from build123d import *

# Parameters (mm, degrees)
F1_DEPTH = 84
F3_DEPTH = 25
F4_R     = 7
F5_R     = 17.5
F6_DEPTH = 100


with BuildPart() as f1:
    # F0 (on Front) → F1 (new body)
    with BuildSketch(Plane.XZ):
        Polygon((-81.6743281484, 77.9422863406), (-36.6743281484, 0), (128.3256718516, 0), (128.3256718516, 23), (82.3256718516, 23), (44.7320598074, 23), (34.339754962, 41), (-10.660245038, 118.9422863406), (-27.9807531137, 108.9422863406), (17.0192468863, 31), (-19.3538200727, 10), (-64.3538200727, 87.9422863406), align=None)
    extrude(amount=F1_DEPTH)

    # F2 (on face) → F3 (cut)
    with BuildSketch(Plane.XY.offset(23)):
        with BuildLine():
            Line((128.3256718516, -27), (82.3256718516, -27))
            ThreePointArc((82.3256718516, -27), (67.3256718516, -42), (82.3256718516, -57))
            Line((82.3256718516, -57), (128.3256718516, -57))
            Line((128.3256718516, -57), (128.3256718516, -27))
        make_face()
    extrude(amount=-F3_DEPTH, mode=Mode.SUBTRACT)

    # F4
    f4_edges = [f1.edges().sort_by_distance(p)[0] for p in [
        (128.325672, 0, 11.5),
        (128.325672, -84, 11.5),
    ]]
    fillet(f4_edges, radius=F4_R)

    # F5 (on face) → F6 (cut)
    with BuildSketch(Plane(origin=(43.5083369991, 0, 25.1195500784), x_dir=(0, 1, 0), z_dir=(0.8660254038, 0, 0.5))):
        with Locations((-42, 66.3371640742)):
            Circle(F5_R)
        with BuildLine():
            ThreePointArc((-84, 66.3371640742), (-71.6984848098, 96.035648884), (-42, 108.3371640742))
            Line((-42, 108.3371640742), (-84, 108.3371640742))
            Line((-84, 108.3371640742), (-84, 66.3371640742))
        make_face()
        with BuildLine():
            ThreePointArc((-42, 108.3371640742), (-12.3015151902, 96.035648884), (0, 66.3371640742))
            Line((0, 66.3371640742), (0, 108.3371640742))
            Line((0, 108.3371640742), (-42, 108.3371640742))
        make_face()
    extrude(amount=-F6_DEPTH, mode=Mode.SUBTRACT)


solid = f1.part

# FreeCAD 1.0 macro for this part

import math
import FreeCAD as App
import Part
import Sketcher
from FreeCAD import Vector
Q = App.Units.Quantity


def edges_at(feature, points):
    """Names of the edges that pass closest to the given points."""
    edges = feature.Shape.Edges
    near = lambda p: min(range(len(edges)), key=lambda i: edges[i].distToShape(Part.Vertex(*p))[0])
    return sorted({f"Edge{near(p) + 1}" for p in points})

doc = App.newDocument("Part")
body = doc.addObject("PartDesign::Body", "Body")

sketch1 = body.newObject("Sketcher::SketchObject", "Sketch")
sketch1.AttachmentSupport = (doc.getObject("XZ_Plane"), [""])
sketch1.MapMode = "FlatFace"
sketch1.addGeometry([
    Part.LineSegment(Vector(-82, 78, 0), Vector(-37, 0, 0)),
    Part.LineSegment(Vector(-37, 0, 0), Vector(128, 0, 0)),
    Part.LineSegment(Vector(128, 0, 0), Vector(128, 23, 0)),
    Part.LineSegment(Vector(128, 23, 0), Vector(45, 23, 0)),
    Part.LineSegment(Vector(45, 23, 0), Vector(-11, 119, 0)),
    Part.LineSegment(Vector(-11, 119, 0), Vector(-28, 109, 0)),
    Part.LineSegment(Vector(-28, 109, 0), Vector(17, 31, 0)),
    Part.LineSegment(Vector(17, 31, 0), Vector(-19, 10, 0)),
    Part.LineSegment(Vector(-19, 10, 0), Vector(-64, 88, 0)),
    Part.LineSegment(Vector(-64, 88, 0), Vector(-82, 78, 0)),
], False)
sketch1.addConstraint([
    Sketcher.Constraint("Coincident", 0, 2, 1, 1),
    Sketcher.Constraint("Coincident", 1, 2, 2, 1),
    Sketcher.Constraint("Coincident", 2, 2, 3, 1),
    Sketcher.Constraint("Coincident", 3, 2, 4, 1),
    Sketcher.Constraint("Coincident", 4, 2, 5, 1),
    Sketcher.Constraint("Coincident", 5, 2, 6, 1),
    Sketcher.Constraint("Coincident", 6, 2, 7, 1),
    Sketcher.Constraint("Coincident", 7, 2, 8, 1),
    Sketcher.Constraint("Coincident", 8, 2, 9, 1),
    Sketcher.Constraint("Coincident", 9, 2, 0, 1),
    Sketcher.Constraint("Horizontal", 1),
    Sketcher.Constraint("Vertical", 2),
    Sketcher.Constraint("Horizontal", 3),
    Sketcher.Constraint("PointOnObject", 0, 2, -1),
    Sketcher.Constraint("Parallel", 0, 4),
    Sketcher.Constraint("Perpendicular", 4, 5),
    Sketcher.Constraint("Perpendicular", 5, 6),
    Sketcher.Constraint("Perpendicular", 6, 7),
    Sketcher.Constraint("Perpendicular", 7, 8),
    Sketcher.Constraint("Perpendicular", 8, 9),
    Sketcher.Constraint("Equal", 0, 6),
    Sketcher.Constraint("Equal", 6, 8),
    Sketcher.Constraint("Equal", 5, 9),
    Sketcher.Constraint("DistanceX", 1, 1, 1, 2, 165.0),
    Sketcher.Constraint("DistanceY", 2, 1, 2, 2, 23.0),
    Sketcher.Constraint("Angle", 0, Q("-60 deg")),
    Sketcher.Constraint("Distance", 0, 90.0),
    Sketcher.Constraint("Distance", 5, 20.0),
    Sketcher.Constraint("Distance", 7, 42.0),
    Sketcher.Constraint("DistanceX", 0, 2, -1, 1, 36.674328),
])
pad1 = body.newObject("PartDesign::Pad", "Pad")
pad1.Profile = sketch1
pad1.Length = 84

sketch2 = body.newObject("Sketcher::SketchObject", "Sketch001")
sketch2.AttachmentSupport = (doc.getObject("XY_Plane"), [""])
sketch2.MapMode = "FlatFace"
sketch2.AttachmentOffset = App.Placement(Vector(0, 0, 23), App.Rotation())
sketch2.addGeometry([
    Part.LineSegment(Vector(128, -27, 0), Vector(82, -27, 0)),
    Part.ArcOfCircle(Part.Circle(Vector(82, -42, 0), Vector(0, 0, 1), 15), math.radians(90), math.radians(270)),
    Part.LineSegment(Vector(82, -57, 0), Vector(128, -57, 0)),
    Part.LineSegment(Vector(128, -57, 0), Vector(128, -27, 0)),
], False)
sketch2.addConstraint([
    Sketcher.Constraint("Tangent", 0, 2, 1, 1),
    Sketcher.Constraint("Tangent", 1, 2, 2, 1),
    Sketcher.Constraint("Coincident", 2, 2, 3, 1),
    Sketcher.Constraint("Coincident", 3, 2, 0, 1),
    Sketcher.Constraint("Horizontal", 0),
    Sketcher.Constraint("Horizontal", 2),
    Sketcher.Constraint("Vertical", 3),
    Sketcher.Constraint("Radius", 1, 15.0),
    Sketcher.Constraint("DistanceX", 0, 2, 0, 1, 46.0),
    Sketcher.Constraint("DistanceY", 1, 3, -1, 1, 42.0),
    Sketcher.Constraint("DistanceX", -1, 1, 1, 3, 82.325672),
])
pocket1 = body.newObject("PartDesign::Pocket", "Pocket")
pocket1.Profile = sketch2
pocket1.Length = 25
doc.recompute()

fillet = body.newObject("PartDesign::Fillet", "Fillet")
fillet.Base = (pocket1, edges_at(pocket1, [(128.326, 0, 11.5), (128.326, -84, 11.5)]))
fillet.Radius = 7

sketch3 = body.newObject("Sketcher::SketchObject", "Sketch002")
sketch3.Placement = App.Placement(Vector(43.508337, 0, 25.11955), App.Rotation(Vector(0, 1, 0), Vector(-0.5, 0, 0.866025404), Vector(0.866025404, 0, 0.5), "ZXY"))
sketch3.addGeometry([
    Part.Circle(Vector(-42, 66, 0), Vector(0, 0, 1), 18),
    Part.ArcOfCircle(Part.Circle(Vector(-42, 66, 0), Vector(0, 0, 1), 42), math.radians(90), math.radians(180)),
    Part.LineSegment(Vector(-42, 108, 0), Vector(-84, 108, 0)),
    Part.LineSegment(Vector(-84, 108, 0), Vector(-84, 66, 0)),
    Part.ArcOfCircle(Part.Circle(Vector(-42, 66, 0), Vector(0, 0, 1), 42), math.radians(0), math.radians(90)),
    Part.LineSegment(Vector(0, 66, 0), Vector(0, 108, 0)),
    Part.LineSegment(Vector(0, 108, 0), Vector(-42, 108, 0)),
], False)
sketch3.addConstraint([
    Sketcher.Constraint("Tangent", 1, 1, 2, 1),
    Sketcher.Constraint("Coincident", 2, 2, 3, 1),
    Sketcher.Constraint("Tangent", 3, 2, 1, 2),
    Sketcher.Constraint("Tangent", 4, 1, 5, 1),
    Sketcher.Constraint("Coincident", 5, 2, 6, 1),
    Sketcher.Constraint("Tangent", 6, 2, 4, 2),
    Sketcher.Constraint("Horizontal", 2),
    Sketcher.Constraint("Vertical", 3),
    Sketcher.Constraint("Vertical", 5),
    Sketcher.Constraint("Horizontal", 6),
    Sketcher.Constraint("Coincident", 1, 3, 0, 3),
    Sketcher.Constraint("Coincident", 4, 3, 0, 3),
    Sketcher.Constraint("Equal", 1, 4),
    Sketcher.Constraint("PointOnObject", 4, 1, -2),
    Sketcher.Constraint("Diameter", 0, 35.0),
    Sketcher.Constraint("Radius", 1, 42.0),
    Sketcher.Constraint("DistanceY", -1, 1, 0, 3, 66.337164),
])
pocket2 = body.newObject("PartDesign::Pocket", "Pocket001")
pocket2.Profile = sketch3
pocket2.Length = 100

doc.recompute()
